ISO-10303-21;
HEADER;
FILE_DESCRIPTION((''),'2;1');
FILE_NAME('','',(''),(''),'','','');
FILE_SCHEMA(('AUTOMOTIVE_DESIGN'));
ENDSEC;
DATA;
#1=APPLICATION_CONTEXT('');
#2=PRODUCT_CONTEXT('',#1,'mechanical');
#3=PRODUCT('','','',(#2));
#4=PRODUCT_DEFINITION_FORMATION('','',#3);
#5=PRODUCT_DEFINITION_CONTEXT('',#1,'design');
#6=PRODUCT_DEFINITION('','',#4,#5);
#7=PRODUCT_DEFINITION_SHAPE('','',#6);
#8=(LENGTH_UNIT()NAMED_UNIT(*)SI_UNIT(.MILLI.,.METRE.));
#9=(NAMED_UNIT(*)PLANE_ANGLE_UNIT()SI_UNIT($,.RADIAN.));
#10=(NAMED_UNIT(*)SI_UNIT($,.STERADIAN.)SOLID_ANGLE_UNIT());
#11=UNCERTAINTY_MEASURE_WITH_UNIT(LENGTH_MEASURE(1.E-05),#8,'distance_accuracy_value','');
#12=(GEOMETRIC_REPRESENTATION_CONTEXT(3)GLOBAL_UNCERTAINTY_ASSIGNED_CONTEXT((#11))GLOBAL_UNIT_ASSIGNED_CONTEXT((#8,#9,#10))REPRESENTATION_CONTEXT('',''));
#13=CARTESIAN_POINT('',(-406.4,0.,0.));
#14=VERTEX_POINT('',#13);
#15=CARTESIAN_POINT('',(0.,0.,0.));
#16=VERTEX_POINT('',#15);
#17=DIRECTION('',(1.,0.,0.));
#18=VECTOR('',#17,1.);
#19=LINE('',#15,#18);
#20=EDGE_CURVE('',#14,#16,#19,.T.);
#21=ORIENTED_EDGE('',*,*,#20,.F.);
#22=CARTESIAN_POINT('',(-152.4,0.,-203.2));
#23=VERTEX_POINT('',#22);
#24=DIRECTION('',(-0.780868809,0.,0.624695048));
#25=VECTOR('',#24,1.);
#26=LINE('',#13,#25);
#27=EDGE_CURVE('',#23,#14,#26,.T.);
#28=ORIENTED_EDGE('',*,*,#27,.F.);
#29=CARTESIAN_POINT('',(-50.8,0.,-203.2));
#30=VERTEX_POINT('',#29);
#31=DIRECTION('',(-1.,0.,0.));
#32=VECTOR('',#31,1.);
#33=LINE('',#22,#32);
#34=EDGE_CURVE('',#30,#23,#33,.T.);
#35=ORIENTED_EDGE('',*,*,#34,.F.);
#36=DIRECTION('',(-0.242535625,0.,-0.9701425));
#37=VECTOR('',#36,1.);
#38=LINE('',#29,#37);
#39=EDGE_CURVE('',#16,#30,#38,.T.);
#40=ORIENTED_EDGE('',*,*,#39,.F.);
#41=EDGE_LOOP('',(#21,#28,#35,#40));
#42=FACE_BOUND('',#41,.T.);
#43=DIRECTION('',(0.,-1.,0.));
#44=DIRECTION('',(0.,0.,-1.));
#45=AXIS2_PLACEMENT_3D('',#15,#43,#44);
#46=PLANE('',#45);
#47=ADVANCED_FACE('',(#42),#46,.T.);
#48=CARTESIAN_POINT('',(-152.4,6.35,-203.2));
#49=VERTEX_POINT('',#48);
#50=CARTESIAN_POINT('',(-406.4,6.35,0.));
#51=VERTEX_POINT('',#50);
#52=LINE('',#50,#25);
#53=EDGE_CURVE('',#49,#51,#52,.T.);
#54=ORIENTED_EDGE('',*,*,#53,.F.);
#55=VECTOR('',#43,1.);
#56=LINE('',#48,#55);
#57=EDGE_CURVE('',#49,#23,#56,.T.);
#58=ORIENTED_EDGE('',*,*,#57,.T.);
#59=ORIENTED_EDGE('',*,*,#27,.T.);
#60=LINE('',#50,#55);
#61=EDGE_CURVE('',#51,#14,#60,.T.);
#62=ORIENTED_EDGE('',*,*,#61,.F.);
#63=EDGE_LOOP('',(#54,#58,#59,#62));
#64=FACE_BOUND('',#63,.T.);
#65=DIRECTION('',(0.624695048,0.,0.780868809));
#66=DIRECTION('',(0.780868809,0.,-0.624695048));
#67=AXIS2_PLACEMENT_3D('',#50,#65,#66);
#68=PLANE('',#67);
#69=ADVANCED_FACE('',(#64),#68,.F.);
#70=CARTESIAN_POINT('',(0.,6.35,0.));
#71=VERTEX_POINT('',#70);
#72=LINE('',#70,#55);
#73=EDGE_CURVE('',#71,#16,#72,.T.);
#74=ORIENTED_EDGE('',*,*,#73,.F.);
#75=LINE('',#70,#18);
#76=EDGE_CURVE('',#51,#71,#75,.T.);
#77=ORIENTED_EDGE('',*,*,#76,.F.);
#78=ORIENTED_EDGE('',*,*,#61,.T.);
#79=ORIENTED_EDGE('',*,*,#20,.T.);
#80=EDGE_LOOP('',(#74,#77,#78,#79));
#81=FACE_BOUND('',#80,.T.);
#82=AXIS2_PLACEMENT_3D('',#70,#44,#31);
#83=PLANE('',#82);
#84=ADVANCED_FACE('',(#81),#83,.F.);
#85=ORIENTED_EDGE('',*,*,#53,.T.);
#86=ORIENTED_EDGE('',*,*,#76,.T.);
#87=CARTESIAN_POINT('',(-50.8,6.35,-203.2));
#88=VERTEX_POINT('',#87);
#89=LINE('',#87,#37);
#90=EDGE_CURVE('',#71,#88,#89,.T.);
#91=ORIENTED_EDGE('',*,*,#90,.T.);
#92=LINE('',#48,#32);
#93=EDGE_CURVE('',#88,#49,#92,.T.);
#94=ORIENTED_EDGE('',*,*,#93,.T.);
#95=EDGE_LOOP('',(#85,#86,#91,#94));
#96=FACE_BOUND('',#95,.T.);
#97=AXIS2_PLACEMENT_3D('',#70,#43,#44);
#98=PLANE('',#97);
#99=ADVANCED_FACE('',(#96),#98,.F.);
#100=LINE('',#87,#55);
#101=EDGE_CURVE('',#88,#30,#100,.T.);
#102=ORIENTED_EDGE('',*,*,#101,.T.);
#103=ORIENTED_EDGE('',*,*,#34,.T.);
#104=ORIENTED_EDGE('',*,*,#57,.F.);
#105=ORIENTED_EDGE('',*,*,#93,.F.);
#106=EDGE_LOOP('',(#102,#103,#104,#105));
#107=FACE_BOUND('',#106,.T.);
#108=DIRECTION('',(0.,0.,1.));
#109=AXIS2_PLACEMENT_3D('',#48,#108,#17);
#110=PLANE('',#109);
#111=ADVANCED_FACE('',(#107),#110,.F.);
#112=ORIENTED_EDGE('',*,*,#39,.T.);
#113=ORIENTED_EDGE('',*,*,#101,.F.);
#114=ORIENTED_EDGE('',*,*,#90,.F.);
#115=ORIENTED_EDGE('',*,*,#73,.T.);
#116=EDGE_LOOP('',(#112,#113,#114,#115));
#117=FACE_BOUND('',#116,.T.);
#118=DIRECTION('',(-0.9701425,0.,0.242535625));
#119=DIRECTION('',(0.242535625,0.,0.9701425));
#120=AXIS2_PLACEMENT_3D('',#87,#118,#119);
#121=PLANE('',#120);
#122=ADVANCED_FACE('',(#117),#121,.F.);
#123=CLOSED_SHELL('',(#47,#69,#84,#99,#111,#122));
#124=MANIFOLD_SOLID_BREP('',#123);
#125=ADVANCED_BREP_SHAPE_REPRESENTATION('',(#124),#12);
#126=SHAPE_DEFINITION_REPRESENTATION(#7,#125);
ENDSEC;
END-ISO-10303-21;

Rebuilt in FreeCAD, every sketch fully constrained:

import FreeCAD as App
import Part
import Sketcher
Q = App.Units.Quantity


def add_polygon(sketch, points):
    """Adds a closed chain of lines whose ends are joined by coincident constraints."""
    first, n = sketch.GeometryCount, len(points)
    for a, b in zip(points, points[1:] + points[:1]):
        sketch.addGeometry(Part.LineSegment(App.Vector(*a, 0), App.Vector(*b, 0)), False)
    for i in range(n):
        sketch.addConstraint(Sketcher.Constraint("Coincident", first + i, 2, first + (i + 1) % n, 1))

doc = App.newDocument("Part")
body = doc.addObject("PartDesign::Body", "Body")

# Sketch on XZ plane
sketch1 = doc.addObject("Sketcher::SketchObject", "Sketch")
body.addObject(sketch1)
sketch1.AttachmentSupport = (doc.XZ_Plane, [""])
sketch1.MapMode = "FlatFace"
add_polygon(sketch1, [(-406.4, 0), (0, 0), (-50.8, -203.2), (-152.4, -203.2)])  # lines 0-3
sketch1.addConstraint(Sketcher.Constraint("Horizontal", 0))
sketch1.addConstraint(Sketcher.Constraint("Horizontal", 2))
sketch1.addConstraint(Sketcher.Constraint("Coincident", 0, 2, -1, 1))
sketch1.addConstraint(Sketcher.Constraint("DistanceX", 0, 1, 0, 2, Q("16 in")))
sketch1.addConstraint(Sketcher.Constraint("DistanceX", 2, 2, 2, 1, Q("4 in")))
sketch1.addConstraint(Sketcher.Constraint("DistanceX", 1, 2, -1, 1, Q("2 in")))
sketch1.addConstraint(Sketcher.Constraint("DistanceY", 1, 2, -1, 1, Q("8 in")))
pad1 = doc.addObject("PartDesign::Pad", "Pad")
body.addObject(pad1)
pad1.Profile = sketch1
pad1.Length = Q("0.25 in")
pad1.Reversed = True

doc.recompute()
